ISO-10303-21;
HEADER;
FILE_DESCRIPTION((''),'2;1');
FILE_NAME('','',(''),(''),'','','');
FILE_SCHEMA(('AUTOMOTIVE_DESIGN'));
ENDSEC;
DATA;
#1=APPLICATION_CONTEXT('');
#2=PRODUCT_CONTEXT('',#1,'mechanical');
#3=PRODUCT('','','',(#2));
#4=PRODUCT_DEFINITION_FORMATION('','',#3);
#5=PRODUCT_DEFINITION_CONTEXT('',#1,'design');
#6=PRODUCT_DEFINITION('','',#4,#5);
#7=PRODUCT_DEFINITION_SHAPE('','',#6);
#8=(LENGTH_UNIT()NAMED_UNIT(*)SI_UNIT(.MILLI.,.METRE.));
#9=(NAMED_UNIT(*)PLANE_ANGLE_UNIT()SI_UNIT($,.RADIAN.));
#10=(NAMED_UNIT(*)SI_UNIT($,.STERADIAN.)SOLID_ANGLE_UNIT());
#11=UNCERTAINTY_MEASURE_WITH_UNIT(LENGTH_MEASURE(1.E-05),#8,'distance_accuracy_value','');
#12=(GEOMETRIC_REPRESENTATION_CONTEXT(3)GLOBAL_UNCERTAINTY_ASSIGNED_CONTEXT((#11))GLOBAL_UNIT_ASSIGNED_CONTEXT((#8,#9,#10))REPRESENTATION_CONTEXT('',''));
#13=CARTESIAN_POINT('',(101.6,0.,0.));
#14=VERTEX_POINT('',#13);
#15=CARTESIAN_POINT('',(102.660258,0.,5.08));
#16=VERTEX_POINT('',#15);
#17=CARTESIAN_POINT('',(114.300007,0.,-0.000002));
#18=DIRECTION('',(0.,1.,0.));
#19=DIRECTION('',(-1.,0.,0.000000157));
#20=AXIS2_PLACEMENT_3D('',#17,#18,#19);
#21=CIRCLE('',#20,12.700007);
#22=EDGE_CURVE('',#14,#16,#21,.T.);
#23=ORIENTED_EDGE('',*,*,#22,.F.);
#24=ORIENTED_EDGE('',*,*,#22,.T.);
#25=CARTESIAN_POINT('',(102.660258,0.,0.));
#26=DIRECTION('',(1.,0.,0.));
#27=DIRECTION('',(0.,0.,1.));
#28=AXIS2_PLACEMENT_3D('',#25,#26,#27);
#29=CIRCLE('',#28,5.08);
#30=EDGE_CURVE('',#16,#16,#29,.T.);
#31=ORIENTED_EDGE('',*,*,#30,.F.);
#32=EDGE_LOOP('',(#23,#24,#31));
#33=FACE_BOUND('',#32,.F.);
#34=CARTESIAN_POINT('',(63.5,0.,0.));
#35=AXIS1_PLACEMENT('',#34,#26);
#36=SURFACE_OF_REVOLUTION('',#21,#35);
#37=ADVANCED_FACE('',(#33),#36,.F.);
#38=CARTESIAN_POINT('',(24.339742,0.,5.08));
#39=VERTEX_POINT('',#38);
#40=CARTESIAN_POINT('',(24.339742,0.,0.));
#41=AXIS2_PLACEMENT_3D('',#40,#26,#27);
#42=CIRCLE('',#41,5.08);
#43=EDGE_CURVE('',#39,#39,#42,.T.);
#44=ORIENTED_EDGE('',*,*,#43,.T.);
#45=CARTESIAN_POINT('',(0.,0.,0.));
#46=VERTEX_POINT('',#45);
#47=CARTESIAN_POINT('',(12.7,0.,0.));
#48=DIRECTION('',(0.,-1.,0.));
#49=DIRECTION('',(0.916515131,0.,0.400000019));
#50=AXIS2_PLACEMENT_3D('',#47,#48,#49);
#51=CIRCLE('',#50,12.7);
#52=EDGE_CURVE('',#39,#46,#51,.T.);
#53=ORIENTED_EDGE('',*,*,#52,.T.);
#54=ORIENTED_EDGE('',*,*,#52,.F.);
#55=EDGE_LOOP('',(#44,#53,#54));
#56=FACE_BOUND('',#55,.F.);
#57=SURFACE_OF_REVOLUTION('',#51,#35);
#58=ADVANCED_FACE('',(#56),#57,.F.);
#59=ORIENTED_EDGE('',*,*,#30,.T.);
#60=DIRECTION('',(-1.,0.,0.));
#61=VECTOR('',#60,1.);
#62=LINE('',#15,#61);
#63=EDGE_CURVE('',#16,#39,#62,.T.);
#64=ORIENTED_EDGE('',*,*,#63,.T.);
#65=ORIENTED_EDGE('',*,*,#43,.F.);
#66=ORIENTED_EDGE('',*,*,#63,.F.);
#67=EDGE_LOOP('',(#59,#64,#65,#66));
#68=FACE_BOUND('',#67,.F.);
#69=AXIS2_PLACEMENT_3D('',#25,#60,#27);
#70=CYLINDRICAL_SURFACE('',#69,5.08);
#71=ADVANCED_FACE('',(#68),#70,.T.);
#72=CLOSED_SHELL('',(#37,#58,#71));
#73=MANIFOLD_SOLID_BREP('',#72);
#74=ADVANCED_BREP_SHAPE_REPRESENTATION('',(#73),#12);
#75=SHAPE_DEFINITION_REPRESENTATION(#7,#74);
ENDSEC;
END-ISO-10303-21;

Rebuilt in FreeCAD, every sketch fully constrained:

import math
import FreeCAD as App
import Part
import Sketcher

V = App.Vector
Q = App.Units.Quantity

doc = App.newDocument("Part")
params = doc.addObject("Spreadsheet::Sheet", "Params")
for row, (alias, value) in enumerate([
    ("sketch1_radius", "0.5 in"),
    ("sketch1_width", "4 in"),
    ("revolution_angle", "360 deg"),
], start=1):
    params.set(f"A{row}", alias)
    params.set(f"B{row}", "=" + value)
    params.setAlias(f"B{row}", alias)

body = doc.addObject("PartDesign::Body", "Body")

# Sketch on XZ plane
sketch1 = body.newObject("Sketcher::SketchObject", "Sketch")
sketch1.AttachmentSupport = (doc.getObject("XZ_Plane"), [""])
sketch1.MapMode = "FlatFace"
sketch1.addGeometry([
    Part.ArcOfCircle(Part.Circle(V(13, 0, 0), V(0, 0, 1), 13), math.radians(24), math.radians(180)),
    Part.LineSegment(V(0, 0, 0), V(102, 0, 0)),
    Part.ArcOfCircle(Part.Circle(V(114, 0, 0), V(0, 0, 1), 13), math.radians(156), math.radians(180)),
    Part.LineSegment(V(103, 5, 0), V(24, 5, 0)),
], False)
sketch1.addConstraint([
    Sketcher.Constraint("Coincident", 0, 2, 1, 1),
    Sketcher.Constraint("Coincident", 1, 2, 2, 2),
    Sketcher.Constraint("Coincident", 2, 1, 3, 1),
    Sketcher.Constraint("Coincident", 3, 2, 0, 1),
    Sketcher.Constraint("Horizontal", 1),
    Sketcher.Constraint("Horizontal", 3),
    Sketcher.Constraint("Coincident", 0, 2, -1, 1),
    Sketcher.Constraint("PointOnObject", 0, 3, -1),
    Sketcher.Constraint("PointOnObject", 2, 3, -1),
    Sketcher.Constraint("Radius", 0, Q("0.5 in")),
    Sketcher.Constraint("DistanceX", 1, 1, 1, 2, Q("4 in")),
    Sketcher.Constraint("DistanceY", -1, 1, 2, 1, Q("0.2 in")),
    Sketcher.Constraint("Radius", 2, 12.700007),
])
sketch1.setExpression("Constraints[9]", "Params.sketch1_radius")
sketch1.setExpression("Constraints[10]", "Params.sketch1_width")
revolution = body.newObject("PartDesign::Revolution", "Revolution")
revolution.Profile = sketch1
revolution.ReferenceAxis = (sketch1, ["H_Axis"])
revolution.setExpression("Angle", "Params.revolution_angle")

doc.recompute()
